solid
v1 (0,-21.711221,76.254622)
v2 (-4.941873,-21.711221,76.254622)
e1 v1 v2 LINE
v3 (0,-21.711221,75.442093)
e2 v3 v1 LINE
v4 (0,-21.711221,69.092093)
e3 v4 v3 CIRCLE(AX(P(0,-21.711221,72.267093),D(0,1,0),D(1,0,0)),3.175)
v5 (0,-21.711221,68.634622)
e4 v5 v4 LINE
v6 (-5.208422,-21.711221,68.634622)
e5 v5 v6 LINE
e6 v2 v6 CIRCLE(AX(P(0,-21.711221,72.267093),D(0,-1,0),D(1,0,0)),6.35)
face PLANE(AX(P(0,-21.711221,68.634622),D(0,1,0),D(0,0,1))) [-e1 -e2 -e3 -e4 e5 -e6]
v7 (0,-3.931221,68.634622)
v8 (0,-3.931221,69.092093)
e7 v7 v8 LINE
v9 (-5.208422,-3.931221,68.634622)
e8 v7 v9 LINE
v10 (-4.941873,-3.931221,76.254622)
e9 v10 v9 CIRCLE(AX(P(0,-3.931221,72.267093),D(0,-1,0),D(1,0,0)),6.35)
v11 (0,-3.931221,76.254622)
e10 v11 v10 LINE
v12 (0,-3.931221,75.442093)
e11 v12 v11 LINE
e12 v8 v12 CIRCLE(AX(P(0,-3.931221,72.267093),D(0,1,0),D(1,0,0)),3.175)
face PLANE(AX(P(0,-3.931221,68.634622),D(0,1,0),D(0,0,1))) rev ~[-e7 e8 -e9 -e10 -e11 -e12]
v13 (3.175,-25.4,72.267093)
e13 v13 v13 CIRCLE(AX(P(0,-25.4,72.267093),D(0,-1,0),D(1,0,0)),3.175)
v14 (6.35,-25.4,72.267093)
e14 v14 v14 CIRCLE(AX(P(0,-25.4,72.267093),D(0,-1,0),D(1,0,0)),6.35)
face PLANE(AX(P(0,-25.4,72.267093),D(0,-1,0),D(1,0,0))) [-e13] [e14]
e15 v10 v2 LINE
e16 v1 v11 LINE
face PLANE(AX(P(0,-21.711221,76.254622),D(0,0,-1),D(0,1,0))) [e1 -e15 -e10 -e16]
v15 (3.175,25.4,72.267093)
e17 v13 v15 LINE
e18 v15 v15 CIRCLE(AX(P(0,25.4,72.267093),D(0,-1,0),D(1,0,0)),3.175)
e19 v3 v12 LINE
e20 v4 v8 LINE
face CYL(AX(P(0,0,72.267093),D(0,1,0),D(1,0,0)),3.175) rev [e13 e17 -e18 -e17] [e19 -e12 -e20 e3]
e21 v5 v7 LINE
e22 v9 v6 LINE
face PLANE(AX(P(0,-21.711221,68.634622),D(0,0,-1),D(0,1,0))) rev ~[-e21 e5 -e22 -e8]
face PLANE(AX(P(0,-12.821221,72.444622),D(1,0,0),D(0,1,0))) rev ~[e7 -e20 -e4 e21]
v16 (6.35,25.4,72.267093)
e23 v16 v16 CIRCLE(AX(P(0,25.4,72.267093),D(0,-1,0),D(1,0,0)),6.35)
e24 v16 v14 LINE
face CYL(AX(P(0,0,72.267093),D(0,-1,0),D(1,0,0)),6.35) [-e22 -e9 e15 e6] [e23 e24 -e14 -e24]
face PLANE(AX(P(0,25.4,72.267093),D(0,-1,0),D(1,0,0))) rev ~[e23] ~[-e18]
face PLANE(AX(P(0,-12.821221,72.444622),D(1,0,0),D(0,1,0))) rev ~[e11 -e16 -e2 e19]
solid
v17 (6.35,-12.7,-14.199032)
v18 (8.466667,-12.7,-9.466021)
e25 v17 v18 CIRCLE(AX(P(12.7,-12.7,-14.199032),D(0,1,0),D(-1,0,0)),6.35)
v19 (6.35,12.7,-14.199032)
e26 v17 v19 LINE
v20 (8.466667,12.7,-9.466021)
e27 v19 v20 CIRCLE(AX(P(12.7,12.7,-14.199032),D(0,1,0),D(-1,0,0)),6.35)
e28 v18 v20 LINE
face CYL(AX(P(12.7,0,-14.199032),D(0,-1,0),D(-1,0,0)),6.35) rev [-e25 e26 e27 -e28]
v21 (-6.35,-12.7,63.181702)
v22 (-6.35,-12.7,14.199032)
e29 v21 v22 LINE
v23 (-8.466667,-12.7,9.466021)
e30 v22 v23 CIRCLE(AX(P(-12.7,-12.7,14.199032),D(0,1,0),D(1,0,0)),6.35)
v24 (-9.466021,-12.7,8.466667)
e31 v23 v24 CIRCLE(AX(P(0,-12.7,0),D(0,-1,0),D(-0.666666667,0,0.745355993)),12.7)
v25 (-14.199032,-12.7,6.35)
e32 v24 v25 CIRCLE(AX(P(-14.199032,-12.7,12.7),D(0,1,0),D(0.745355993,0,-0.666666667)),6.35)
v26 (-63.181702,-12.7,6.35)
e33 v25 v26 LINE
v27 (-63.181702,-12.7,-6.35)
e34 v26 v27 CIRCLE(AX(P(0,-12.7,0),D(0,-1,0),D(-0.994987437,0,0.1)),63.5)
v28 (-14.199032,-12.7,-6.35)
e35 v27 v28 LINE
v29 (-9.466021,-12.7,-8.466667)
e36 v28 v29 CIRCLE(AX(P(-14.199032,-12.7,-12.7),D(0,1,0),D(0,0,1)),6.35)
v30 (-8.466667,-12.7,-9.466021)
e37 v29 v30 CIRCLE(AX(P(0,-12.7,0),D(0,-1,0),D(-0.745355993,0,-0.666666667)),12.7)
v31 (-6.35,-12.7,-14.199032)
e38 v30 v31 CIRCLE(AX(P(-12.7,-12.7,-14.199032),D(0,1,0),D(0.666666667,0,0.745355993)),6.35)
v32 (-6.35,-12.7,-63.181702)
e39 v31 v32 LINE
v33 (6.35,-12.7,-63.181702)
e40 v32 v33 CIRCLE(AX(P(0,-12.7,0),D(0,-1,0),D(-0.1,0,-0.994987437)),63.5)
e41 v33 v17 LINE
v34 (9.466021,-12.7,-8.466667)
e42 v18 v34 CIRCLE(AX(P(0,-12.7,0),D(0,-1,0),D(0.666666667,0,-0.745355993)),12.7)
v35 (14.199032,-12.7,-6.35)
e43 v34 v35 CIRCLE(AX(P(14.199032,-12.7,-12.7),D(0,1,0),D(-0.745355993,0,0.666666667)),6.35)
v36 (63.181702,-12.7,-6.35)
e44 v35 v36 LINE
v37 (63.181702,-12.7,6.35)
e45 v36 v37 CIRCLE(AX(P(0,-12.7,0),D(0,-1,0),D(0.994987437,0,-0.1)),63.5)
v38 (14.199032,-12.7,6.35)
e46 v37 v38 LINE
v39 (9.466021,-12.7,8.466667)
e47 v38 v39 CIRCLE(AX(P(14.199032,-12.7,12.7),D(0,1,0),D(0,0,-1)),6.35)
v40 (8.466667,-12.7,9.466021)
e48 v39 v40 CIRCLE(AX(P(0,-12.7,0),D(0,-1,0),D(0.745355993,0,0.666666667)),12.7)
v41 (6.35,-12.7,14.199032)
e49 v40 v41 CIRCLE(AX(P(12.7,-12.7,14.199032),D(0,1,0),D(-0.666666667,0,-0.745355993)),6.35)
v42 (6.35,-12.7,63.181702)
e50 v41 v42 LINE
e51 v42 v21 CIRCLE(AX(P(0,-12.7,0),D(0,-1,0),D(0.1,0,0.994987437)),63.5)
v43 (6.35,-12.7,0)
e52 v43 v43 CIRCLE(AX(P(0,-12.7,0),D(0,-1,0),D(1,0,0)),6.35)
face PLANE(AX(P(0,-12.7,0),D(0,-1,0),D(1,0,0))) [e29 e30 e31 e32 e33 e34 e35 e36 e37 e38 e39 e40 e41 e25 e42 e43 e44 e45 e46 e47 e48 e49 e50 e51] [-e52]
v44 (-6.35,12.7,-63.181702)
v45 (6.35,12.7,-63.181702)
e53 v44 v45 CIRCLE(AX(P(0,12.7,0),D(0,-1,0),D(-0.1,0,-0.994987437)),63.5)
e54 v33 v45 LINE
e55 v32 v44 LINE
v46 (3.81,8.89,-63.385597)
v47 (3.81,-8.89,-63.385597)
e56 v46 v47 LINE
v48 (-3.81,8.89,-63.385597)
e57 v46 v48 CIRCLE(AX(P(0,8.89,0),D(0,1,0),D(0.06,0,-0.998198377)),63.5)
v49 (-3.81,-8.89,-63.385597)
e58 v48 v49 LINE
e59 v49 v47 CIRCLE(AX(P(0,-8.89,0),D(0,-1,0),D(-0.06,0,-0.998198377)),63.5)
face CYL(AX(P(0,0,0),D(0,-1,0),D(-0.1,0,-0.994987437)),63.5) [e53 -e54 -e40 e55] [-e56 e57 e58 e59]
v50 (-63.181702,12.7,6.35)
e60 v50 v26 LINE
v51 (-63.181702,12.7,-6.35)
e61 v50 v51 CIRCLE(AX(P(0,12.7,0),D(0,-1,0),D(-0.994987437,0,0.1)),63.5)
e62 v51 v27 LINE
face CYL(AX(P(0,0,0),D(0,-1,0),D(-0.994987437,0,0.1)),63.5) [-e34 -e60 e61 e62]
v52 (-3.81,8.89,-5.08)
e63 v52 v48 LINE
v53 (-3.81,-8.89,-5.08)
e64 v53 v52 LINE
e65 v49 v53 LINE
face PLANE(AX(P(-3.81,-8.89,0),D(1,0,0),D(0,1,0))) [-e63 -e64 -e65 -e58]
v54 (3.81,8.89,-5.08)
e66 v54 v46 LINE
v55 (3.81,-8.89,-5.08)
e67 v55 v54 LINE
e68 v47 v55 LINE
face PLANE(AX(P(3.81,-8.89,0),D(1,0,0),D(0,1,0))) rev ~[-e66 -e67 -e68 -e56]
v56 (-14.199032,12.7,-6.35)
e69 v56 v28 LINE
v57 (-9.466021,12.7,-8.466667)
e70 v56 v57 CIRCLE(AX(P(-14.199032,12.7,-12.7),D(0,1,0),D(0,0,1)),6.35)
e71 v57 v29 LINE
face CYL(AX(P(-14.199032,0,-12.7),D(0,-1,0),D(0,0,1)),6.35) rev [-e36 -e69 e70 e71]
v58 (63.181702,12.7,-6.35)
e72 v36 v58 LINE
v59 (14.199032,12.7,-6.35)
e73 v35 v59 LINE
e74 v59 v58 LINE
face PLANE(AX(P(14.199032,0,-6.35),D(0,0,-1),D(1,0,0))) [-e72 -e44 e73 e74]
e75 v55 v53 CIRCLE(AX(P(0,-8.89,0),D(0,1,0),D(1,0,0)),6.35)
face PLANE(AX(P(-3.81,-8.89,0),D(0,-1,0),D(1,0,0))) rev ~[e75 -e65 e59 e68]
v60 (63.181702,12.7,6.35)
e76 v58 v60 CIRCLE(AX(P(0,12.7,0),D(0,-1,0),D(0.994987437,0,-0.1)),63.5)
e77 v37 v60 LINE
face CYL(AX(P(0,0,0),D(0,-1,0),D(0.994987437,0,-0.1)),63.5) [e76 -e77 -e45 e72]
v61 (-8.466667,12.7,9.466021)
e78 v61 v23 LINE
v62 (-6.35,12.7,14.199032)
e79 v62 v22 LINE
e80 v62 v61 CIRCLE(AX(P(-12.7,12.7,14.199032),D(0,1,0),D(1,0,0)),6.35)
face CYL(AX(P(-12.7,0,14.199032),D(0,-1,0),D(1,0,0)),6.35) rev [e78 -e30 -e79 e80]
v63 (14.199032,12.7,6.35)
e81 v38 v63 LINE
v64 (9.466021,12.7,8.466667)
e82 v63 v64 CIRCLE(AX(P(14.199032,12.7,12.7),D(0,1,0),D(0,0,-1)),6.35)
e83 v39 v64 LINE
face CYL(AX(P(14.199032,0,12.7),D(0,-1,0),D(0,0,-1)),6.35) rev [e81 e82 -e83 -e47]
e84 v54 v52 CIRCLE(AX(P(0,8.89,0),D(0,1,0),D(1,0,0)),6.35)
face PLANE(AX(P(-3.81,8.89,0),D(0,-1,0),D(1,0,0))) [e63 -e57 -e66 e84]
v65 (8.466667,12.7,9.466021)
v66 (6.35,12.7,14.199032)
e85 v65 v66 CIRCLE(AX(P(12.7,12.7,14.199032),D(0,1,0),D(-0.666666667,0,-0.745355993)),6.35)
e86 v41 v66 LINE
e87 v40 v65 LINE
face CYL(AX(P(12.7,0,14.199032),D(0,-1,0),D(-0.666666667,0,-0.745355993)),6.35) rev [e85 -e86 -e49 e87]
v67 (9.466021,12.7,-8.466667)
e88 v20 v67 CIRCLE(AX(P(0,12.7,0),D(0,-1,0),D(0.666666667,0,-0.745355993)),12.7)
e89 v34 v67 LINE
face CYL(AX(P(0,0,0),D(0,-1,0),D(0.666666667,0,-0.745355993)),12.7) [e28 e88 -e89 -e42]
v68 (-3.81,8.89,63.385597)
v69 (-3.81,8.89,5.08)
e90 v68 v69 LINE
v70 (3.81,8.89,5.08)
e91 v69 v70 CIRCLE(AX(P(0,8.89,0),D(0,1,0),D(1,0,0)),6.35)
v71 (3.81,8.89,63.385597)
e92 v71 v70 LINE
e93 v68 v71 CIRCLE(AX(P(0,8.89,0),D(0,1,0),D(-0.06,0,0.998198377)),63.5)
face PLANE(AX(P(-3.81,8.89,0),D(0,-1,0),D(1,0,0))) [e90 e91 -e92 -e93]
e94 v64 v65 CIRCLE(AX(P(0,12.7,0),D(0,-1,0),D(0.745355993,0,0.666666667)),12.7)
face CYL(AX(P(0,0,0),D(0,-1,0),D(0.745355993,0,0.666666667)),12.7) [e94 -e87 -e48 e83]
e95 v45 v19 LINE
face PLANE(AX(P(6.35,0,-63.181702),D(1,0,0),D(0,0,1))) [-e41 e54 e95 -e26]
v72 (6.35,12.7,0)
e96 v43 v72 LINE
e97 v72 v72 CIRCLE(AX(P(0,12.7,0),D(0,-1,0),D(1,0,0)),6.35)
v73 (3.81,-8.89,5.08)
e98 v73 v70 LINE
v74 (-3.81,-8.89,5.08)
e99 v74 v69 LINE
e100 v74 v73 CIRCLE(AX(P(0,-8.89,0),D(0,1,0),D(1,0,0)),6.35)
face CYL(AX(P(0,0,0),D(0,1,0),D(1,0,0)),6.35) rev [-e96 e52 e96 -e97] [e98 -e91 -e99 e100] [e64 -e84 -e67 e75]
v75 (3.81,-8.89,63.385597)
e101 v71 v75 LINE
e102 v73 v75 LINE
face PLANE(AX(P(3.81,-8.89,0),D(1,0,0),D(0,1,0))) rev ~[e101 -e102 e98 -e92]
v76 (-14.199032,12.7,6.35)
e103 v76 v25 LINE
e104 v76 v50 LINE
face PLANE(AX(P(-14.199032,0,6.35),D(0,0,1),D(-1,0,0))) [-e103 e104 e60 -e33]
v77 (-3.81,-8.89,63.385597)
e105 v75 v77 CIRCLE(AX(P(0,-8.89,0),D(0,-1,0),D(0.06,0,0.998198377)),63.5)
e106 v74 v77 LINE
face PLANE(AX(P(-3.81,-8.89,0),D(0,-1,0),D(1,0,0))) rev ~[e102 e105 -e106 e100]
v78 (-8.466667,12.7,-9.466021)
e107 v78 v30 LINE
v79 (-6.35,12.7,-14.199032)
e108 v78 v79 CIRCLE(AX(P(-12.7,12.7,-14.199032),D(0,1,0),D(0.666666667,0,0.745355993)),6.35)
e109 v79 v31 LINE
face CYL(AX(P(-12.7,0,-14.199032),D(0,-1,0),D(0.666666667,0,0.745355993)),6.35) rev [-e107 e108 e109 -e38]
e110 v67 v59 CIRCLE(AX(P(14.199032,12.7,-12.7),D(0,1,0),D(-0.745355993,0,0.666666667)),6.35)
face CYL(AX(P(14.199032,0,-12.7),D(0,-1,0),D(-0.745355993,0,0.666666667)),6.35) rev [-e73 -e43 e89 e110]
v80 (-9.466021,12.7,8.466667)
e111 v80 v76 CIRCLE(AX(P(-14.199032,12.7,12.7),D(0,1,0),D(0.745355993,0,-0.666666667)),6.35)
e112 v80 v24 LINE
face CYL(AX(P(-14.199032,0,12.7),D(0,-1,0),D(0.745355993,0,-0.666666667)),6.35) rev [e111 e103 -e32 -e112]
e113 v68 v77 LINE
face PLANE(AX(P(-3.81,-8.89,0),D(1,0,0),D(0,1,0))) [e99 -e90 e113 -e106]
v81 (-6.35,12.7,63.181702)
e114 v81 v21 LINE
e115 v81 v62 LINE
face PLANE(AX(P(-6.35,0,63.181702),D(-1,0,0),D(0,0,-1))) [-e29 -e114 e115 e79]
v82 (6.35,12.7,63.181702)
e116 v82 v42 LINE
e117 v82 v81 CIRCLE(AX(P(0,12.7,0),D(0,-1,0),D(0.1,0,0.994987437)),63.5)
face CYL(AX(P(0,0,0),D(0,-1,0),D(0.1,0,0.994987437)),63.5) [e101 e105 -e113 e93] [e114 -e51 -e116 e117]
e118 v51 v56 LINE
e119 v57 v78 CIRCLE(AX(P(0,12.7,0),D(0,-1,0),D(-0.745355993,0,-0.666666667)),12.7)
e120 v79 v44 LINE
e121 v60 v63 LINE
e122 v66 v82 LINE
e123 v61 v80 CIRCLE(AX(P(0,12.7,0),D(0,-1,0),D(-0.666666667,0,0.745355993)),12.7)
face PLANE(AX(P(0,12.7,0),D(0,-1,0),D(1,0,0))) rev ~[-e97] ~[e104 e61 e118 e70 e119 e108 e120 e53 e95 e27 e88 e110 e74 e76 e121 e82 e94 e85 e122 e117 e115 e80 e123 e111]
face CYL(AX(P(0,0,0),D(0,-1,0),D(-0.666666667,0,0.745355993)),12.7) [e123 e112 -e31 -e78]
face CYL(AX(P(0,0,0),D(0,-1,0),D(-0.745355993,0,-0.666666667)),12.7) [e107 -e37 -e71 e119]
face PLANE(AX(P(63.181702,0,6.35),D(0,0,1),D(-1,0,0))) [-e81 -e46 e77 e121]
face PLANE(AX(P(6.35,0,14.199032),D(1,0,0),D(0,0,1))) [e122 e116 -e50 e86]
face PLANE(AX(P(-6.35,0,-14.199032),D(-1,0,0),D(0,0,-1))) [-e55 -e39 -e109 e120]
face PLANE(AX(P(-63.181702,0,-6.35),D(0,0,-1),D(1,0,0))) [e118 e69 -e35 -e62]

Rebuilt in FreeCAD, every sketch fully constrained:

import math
import FreeCAD as App
import Part
import Sketcher
from FreeCAD import Vector
Q = App.Units.Quantity


def add_polygon(sketch, points):
    """Adds a closed chain of lines whose ends are joined by coincident constraints."""
    first, n = sketch.GeometryCount, len(points)
    for a, b in zip(points, points[1:] + points[:1]):
        sketch.addGeometry(Part.LineSegment(App.Vector(*a, 0), App.Vector(*b, 0)), False)
    for i in range(n):
        sketch.addConstraint(Sketcher.Constraint("Coincident", first + i, 2, first + (i + 1) % n, 1))

doc = App.newDocument("Part")
params = doc.addObject("Spreadsheet::Sheet", "Params")
for row, (alias, value) in enumerate([
    ("sketch1_diameter", "0.5 in"),
    ("sketch1_radius", "2.5 in"),
    ("sketch1_radius2", "0.5 in"),
    ("pad1_length", "1 in"),
    ("sketch2_width", "0.3 in"),
    ("sketch2_height", "0.7 in"),
    ("pocket1_length", "5 in"),
    ("sketch3_diameter", "0.5 in"),
    ("sketch3_diameter2", "0.25 in"),
    ("pad2_length", "2 in"),
    ("sketch4_width", "0.7 in"),
    ("sketch4_height", "0.3 in"),
    ("pocket2_length", "0.3 in"),
], start=1):
    params.set(f"A{row}", alias)
    params.set(f"B{row}", "=" + value)
    params.setAlias(f"B{row}", alias)

body = doc.addObject("PartDesign::Body", "Body")

# Sketch on XZ plane
sketch1 = body.newObject("Sketcher::SketchObject", "Sketch")
sketch1.AttachmentSupport = (doc.getObject("XZ_Plane"), [""])
sketch1.MapMode = "FlatFace"
sketch1.addGeometry([
    Part.LineSegment(Vector(6.3, 14.2, 0), Vector(6.3, 63.2, 0)),  # 0
    Part.ArcOfCircle(Part.Circle(Vector(0, 0, 0), Vector(0, 0, 1), 63.5), math.radians(84.26), math.radians(95.74)),  # 1
    Part.LineSegment(Vector(-6.3, 63.2, 0), Vector(-6.3, 14.2, 0)),  # 2
    Part.ArcOfCircle(Part.Circle(Vector(-12.7, 14.2, 0), Vector(0, 0, 1), 6.3), math.radians(-48), math.radians(0)),  # 3
    Part.ArcOfCircle(Part.Circle(Vector(0, 0, 0), Vector(0, 0, 1), 12.7), math.radians(131.81), math.radians(138.19)),  # 4
    Part.ArcOfCircle(Part.Circle(Vector(-14.2, 12.7, 0), Vector(0, 0, 1), 6.3), math.radians(-90), math.radians(-42)),  # 5
    Part.LineSegment(Vector(-14.2, 6.3, 0), Vector(-63.2, 6.3, 0)),  # 6
    Part.ArcOfCircle(Part.Circle(Vector(0, 0, 0), Vector(0, 0, 1), 63.5), math.radians(174.26), math.radians(185.74)),  # 7
    Part.LineSegment(Vector(-63.2, -6.3, 0), Vector(-14.2, -6.3, 0)),  # 8
    Part.ArcOfCircle(Part.Circle(Vector(-14.2, -12.7, 0), Vector(0, 0, 1), 6.3), math.radians(42), math.radians(90)),  # 9
    Part.ArcOfCircle(Part.Circle(Vector(0, 0, 0), Vector(0, 0, 1), 12.7), math.radians(-138.19), math.radians(-131.81)),  # 10
    Part.ArcOfCircle(Part.Circle(Vector(-12.7, -14.2, 0), Vector(0, 0, 1), 6.3), math.radians(0), math.radians(48)),  # 11
    Part.LineSegment(Vector(-6.3, -14.2, 0), Vector(-6.3, -63.2, 0)),  # 12
    Part.ArcOfCircle(Part.Circle(Vector(0, 0, 0), Vector(0, 0, 1), 63.5), math.radians(-95.74), math.radians(-84.26)),  # 13
    Part.LineSegment(Vector(6.3, -63.2, 0), Vector(6.3, -14.2, 0)),  # 14
    Part.ArcOfCircle(Part.Circle(Vector(12.7, -14.2, 0), Vector(0, 0, 1), 6.3), math.radians(132), math.radians(180)),  # 15
    Part.ArcOfCircle(Part.Circle(Vector(0, 0, 0), Vector(0, 0, 1), 12.7), math.radians(-48.19), math.radians(-41.81)),  # 16
    Part.ArcOfCircle(Part.Circle(Vector(14.2, -12.7, 0), Vector(0, 0, 1), 6.3), math.radians(90), math.radians(138)),  # 17
    Part.LineSegment(Vector(14.2, -6.3, 0), Vector(63.2, -6.3, 0)),  # 18
    Part.ArcOfCircle(Part.Circle(Vector(0, 0, 0), Vector(0, 0, 1), 63.5), math.radians(-5.74), math.radians(5.74)),  # 19
    Part.LineSegment(Vector(63.2, 6.3, 0), Vector(14.2, 6.3, 0)),  # 20
    Part.ArcOfCircle(Part.Circle(Vector(14.2, 12.7, 0), Vector(0, 0, 1), 6.3), math.radians(-138), math.radians(-90)),  # 21
    Part.ArcOfCircle(Part.Circle(Vector(0, 0, 0), Vector(0, 0, 1), 12.7), math.radians(41.81), math.radians(48.19)),  # 22
    Part.ArcOfCircle(Part.Circle(Vector(12.7, 14.2, 0), Vector(0, 0, 1), 6.3), math.radians(180), math.radians(228)),  # 23
    Part.Circle(Vector(0, 0, 0), Vector(0, 0, 1), 6.3),  # 24
], False)
sketch1.addConstraint([
    Sketcher.Constraint("Coincident", 0, 2, 1, 1),
    Sketcher.Constraint("Coincident", 1, 2, 2, 1),
    Sketcher.Constraint("Tangent", 2, 2, 3, 2),
    Sketcher.Constraint("Tangent", 3, 1, 4, 1),
    Sketcher.Constraint("Tangent", 4, 2, 5, 2),
    Sketcher.Constraint("Tangent", 5, 1, 6, 1),
    Sketcher.Constraint("Coincident", 6, 2, 7, 1),
    Sketcher.Constraint("Coincident", 7, 2, 8, 1),
    Sketcher.Constraint("Tangent", 8, 2, 9, 2),
    Sketcher.Constraint("Tangent", 9, 1, 10, 1),
    Sketcher.Constraint("Tangent", 10, 2, 11, 2),
    Sketcher.Constraint("Tangent", 11, 1, 12, 1),
    Sketcher.Constraint("Coincident", 12, 2, 13, 1),
    Sketcher.Constraint("Coincident", 13, 2, 14, 1),
    Sketcher.Constraint("Tangent", 14, 2, 15, 2),
    Sketcher.Constraint("Tangent", 15, 1, 16, 1),
    Sketcher.Constraint("Tangent", 16, 2, 17, 2),
    Sketcher.Constraint("Tangent", 17, 1, 18, 1),
    Sketcher.Constraint("Coincident", 18, 2, 19, 1),
    Sketcher.Constraint("Coincident", 19, 2, 20, 1),
    Sketcher.Constraint("Tangent", 20, 2, 21, 2),
    Sketcher.Constraint("Tangent", 21, 1, 22, 1),
    Sketcher.Constraint("Tangent", 22, 2, 23, 2),
    Sketcher.Constraint("Tangent", 23, 1, 0, 1),
    Sketcher.Constraint("Vertical", 0),
    Sketcher.Constraint("Vertical", 2),
    Sketcher.Constraint("Horizontal", 6),
    Sketcher.Constraint("Horizontal", 8),
    Sketcher.Constraint("Vertical", 12),
    Sketcher.Constraint("Vertical", 14),
    Sketcher.Constraint("Horizontal", 18),
    Sketcher.Constraint("Horizontal", 20),
    Sketcher.Constraint("Coincident", 1, 3, -1, 1),
    Sketcher.Constraint("Coincident", 4, 3, -1, 1),
    Sketcher.Constraint("Coincident", 7, 3, -1, 1),
    Sketcher.Constraint("Coincident", 10, 3, -1, 1),
    Sketcher.Constraint("Coincident", 13, 3, -1, 1),
    Sketcher.Constraint("Coincident", 16, 3, -1, 1),
    Sketcher.Constraint("Coincident", 19, 3, -1, 1),
    Sketcher.Constraint("Coincident", 22, 3, -1, 1),
    Sketcher.Constraint("Coincident", 24, 3, -1, 1),
    Sketcher.Constraint("Equal", 3, 5),
    Sketcher.Constraint("Equal", 1, 7),
    Sketcher.Constraint("Equal", 5, 9),
    Sketcher.Constraint("Equal", 4, 10),
    Sketcher.Constraint("Equal", 9, 11),
    Sketcher.Constraint("Equal", 7, 13),
    Sketcher.Constraint("Equal", 11, 15),
    Sketcher.Constraint("Equal", 10, 16),
    Sketcher.Constraint("Equal", 15, 17),
    Sketcher.Constraint("Equal", 13, 19),
    Sketcher.Constraint("Equal", 17, 21),
    Sketcher.Constraint("Equal", 16, 22),
    Sketcher.Constraint("Equal", 21, 23),
    Sketcher.Constraint("Equal", 23, 24),
    Sketcher.Constraint("Horizontal", 11, 3, 15, 3),
    Sketcher.Constraint("Horizontal", 9, 3, 17, 3),
    Sketcher.Constraint("Horizontal", 5, 3, 21, 3),
    Sketcher.Constraint("Horizontal", 3, 3, 23, 3),
    Sketcher.Constraint("Vertical", 5, 3, 9, 3),
    Sketcher.Constraint("Vertical", 3, 3, 11, 3),
    Sketcher.Constraint("Equal", 20, 0),
    Sketcher.Constraint("Diameter", 24, Q("0.5 in")),
    Sketcher.Constraint("Radius", 1, Q("2.5 in")),
    Sketcher.Constraint("Radius", 4, Q("0.5 in")),
    Sketcher.Constraint("DistanceY", 9, 3, 5, 3, Q("1 in")),
])
sketch1.setExpression("Constraints[62]", "Params.sketch1_diameter")
sketch1.setExpression("Constraints[63]", "Params.sketch1_radius")
sketch1.setExpression("Constraints[64]", "Params.sketch1_radius2")
pad1 = body.newObject("PartDesign::Pad", "Pad")
pad1.Profile = sketch1
pad1.setExpression("Length", "Params.pad1_length")
pad1.Midplane = True

# Sketch on XY plane
sketch2 = body.newObject("Sketcher::SketchObject", "Sketch001")
sketch2.AttachmentSupport = (doc.getObject("XY_Plane"), [""])
sketch2.MapMode = "FlatFace"
add_polygon(sketch2, [(-4, 9), (-4, -9), (4, -9), (4, 9)])  # lines 0-3
sketch2.addConstraint([
    Sketcher.Constraint("Vertical", 0),
    Sketcher.Constraint("Horizontal", 1),
    Sketcher.Constraint("Vertical", 2),
    Sketcher.Constraint("Horizontal", 3),
    Sketcher.Constraint("Symmetric", 0, 2, 2, 2, -1, 1),
    Sketcher.Constraint("DistanceX", 1, 1, 1, 2, Q("0.3 in")),
    Sketcher.Constraint("DistanceY", 0, 2, 0, 1, Q("0.7 in")),
])
sketch2.setExpression("Constraints[9]", "Params.sketch2_width")
sketch2.setExpression("Constraints[10]", "Params.sketch2_height")
pocket1 = body.newObject("PartDesign::Pocket", "Pocket")
pocket1.Profile = sketch2
pocket1.setExpression("Length", "Params.pocket1_length")
pocket1.Midplane = True
body2 = doc.addObject("PartDesign::Body", "Body001")

# Sketch on XZ plane
sketch3 = body2.newObject("Sketcher::SketchObject", "Sketch002")
sketch3.AttachmentSupport = (doc.getObject("XZ_Plane001"), [""])
sketch3.MapMode = "FlatFace"
sketch3.addGeometry([
    Part.Circle(Vector(0, 72.3, 0), Vector(0, 0, 1), 6.3),
    Part.Circle(Vector(0, 72.3, 0), Vector(0, 0, 1), 3.2),
], False)
sketch3.addConstraint([
    Sketcher.Constraint("Coincident", 1, 3, 0, 3),
    Sketcher.Constraint("PointOnObject", 0, 3, -2),
    Sketcher.Constraint("Diameter", 0, Q("0.5 in")),
    Sketcher.Constraint("Diameter", 1, Q("0.25 in")),
    Sketcher.Constraint("DistanceY", -1, 1, 0, 3, 72.267093),
])
sketch3.setExpression("Constraints[2]", "Params.sketch3_diameter")
sketch3.setExpression("Constraints[3]", "Params.sketch3_diameter2")
pad2 = body2.newObject("PartDesign::Pad", "Pad001")
pad2.Profile = sketch3
pad2.setExpression("Length", "Params.pad2_length")
pad2.Midplane = True

# Sketch on YZ plane
sketch4 = body2.newObject("Sketcher::SketchObject", "Sketch003")
sketch4.AttachmentSupport = (doc.getObject("YZ_Plane001"), [""])
sketch4.MapMode = "FlatFace"
add_polygon(sketch4, [(-22, 76), (-22, 69), (-4, 69), (-4, 76)])  # lines 0-3
sketch4.addConstraint([
    Sketcher.Constraint("Vertical", 0),
    Sketcher.Constraint("Horizontal", 1),
    Sketcher.Constraint("Vertical", 2),
    Sketcher.Constraint("Horizontal", 3),
    Sketcher.Constraint("DistanceX", 1, 1, 1, 2, Q("0.7 in")),
    Sketcher.Constraint("DistanceY", 0, 2, 0, 1, Q("0.3 in")),
    Sketcher.Constraint("DistanceX", 0, 2, -1, 1, 21.711221),
    Sketcher.Constraint("DistanceY", -1, 1, 0, 2, 68.634622),
])
sketch4.setExpression("Constraints[8]", "Params.sketch4_width")
sketch4.setExpression("Constraints[9]", "Params.sketch4_height")
pocket2 = body2.newObject("PartDesign::Pocket", "Pocket001")
pocket2.Profile = sketch4
pocket2.setExpression("Length", "Params.pocket2_length")

doc.recompute()
